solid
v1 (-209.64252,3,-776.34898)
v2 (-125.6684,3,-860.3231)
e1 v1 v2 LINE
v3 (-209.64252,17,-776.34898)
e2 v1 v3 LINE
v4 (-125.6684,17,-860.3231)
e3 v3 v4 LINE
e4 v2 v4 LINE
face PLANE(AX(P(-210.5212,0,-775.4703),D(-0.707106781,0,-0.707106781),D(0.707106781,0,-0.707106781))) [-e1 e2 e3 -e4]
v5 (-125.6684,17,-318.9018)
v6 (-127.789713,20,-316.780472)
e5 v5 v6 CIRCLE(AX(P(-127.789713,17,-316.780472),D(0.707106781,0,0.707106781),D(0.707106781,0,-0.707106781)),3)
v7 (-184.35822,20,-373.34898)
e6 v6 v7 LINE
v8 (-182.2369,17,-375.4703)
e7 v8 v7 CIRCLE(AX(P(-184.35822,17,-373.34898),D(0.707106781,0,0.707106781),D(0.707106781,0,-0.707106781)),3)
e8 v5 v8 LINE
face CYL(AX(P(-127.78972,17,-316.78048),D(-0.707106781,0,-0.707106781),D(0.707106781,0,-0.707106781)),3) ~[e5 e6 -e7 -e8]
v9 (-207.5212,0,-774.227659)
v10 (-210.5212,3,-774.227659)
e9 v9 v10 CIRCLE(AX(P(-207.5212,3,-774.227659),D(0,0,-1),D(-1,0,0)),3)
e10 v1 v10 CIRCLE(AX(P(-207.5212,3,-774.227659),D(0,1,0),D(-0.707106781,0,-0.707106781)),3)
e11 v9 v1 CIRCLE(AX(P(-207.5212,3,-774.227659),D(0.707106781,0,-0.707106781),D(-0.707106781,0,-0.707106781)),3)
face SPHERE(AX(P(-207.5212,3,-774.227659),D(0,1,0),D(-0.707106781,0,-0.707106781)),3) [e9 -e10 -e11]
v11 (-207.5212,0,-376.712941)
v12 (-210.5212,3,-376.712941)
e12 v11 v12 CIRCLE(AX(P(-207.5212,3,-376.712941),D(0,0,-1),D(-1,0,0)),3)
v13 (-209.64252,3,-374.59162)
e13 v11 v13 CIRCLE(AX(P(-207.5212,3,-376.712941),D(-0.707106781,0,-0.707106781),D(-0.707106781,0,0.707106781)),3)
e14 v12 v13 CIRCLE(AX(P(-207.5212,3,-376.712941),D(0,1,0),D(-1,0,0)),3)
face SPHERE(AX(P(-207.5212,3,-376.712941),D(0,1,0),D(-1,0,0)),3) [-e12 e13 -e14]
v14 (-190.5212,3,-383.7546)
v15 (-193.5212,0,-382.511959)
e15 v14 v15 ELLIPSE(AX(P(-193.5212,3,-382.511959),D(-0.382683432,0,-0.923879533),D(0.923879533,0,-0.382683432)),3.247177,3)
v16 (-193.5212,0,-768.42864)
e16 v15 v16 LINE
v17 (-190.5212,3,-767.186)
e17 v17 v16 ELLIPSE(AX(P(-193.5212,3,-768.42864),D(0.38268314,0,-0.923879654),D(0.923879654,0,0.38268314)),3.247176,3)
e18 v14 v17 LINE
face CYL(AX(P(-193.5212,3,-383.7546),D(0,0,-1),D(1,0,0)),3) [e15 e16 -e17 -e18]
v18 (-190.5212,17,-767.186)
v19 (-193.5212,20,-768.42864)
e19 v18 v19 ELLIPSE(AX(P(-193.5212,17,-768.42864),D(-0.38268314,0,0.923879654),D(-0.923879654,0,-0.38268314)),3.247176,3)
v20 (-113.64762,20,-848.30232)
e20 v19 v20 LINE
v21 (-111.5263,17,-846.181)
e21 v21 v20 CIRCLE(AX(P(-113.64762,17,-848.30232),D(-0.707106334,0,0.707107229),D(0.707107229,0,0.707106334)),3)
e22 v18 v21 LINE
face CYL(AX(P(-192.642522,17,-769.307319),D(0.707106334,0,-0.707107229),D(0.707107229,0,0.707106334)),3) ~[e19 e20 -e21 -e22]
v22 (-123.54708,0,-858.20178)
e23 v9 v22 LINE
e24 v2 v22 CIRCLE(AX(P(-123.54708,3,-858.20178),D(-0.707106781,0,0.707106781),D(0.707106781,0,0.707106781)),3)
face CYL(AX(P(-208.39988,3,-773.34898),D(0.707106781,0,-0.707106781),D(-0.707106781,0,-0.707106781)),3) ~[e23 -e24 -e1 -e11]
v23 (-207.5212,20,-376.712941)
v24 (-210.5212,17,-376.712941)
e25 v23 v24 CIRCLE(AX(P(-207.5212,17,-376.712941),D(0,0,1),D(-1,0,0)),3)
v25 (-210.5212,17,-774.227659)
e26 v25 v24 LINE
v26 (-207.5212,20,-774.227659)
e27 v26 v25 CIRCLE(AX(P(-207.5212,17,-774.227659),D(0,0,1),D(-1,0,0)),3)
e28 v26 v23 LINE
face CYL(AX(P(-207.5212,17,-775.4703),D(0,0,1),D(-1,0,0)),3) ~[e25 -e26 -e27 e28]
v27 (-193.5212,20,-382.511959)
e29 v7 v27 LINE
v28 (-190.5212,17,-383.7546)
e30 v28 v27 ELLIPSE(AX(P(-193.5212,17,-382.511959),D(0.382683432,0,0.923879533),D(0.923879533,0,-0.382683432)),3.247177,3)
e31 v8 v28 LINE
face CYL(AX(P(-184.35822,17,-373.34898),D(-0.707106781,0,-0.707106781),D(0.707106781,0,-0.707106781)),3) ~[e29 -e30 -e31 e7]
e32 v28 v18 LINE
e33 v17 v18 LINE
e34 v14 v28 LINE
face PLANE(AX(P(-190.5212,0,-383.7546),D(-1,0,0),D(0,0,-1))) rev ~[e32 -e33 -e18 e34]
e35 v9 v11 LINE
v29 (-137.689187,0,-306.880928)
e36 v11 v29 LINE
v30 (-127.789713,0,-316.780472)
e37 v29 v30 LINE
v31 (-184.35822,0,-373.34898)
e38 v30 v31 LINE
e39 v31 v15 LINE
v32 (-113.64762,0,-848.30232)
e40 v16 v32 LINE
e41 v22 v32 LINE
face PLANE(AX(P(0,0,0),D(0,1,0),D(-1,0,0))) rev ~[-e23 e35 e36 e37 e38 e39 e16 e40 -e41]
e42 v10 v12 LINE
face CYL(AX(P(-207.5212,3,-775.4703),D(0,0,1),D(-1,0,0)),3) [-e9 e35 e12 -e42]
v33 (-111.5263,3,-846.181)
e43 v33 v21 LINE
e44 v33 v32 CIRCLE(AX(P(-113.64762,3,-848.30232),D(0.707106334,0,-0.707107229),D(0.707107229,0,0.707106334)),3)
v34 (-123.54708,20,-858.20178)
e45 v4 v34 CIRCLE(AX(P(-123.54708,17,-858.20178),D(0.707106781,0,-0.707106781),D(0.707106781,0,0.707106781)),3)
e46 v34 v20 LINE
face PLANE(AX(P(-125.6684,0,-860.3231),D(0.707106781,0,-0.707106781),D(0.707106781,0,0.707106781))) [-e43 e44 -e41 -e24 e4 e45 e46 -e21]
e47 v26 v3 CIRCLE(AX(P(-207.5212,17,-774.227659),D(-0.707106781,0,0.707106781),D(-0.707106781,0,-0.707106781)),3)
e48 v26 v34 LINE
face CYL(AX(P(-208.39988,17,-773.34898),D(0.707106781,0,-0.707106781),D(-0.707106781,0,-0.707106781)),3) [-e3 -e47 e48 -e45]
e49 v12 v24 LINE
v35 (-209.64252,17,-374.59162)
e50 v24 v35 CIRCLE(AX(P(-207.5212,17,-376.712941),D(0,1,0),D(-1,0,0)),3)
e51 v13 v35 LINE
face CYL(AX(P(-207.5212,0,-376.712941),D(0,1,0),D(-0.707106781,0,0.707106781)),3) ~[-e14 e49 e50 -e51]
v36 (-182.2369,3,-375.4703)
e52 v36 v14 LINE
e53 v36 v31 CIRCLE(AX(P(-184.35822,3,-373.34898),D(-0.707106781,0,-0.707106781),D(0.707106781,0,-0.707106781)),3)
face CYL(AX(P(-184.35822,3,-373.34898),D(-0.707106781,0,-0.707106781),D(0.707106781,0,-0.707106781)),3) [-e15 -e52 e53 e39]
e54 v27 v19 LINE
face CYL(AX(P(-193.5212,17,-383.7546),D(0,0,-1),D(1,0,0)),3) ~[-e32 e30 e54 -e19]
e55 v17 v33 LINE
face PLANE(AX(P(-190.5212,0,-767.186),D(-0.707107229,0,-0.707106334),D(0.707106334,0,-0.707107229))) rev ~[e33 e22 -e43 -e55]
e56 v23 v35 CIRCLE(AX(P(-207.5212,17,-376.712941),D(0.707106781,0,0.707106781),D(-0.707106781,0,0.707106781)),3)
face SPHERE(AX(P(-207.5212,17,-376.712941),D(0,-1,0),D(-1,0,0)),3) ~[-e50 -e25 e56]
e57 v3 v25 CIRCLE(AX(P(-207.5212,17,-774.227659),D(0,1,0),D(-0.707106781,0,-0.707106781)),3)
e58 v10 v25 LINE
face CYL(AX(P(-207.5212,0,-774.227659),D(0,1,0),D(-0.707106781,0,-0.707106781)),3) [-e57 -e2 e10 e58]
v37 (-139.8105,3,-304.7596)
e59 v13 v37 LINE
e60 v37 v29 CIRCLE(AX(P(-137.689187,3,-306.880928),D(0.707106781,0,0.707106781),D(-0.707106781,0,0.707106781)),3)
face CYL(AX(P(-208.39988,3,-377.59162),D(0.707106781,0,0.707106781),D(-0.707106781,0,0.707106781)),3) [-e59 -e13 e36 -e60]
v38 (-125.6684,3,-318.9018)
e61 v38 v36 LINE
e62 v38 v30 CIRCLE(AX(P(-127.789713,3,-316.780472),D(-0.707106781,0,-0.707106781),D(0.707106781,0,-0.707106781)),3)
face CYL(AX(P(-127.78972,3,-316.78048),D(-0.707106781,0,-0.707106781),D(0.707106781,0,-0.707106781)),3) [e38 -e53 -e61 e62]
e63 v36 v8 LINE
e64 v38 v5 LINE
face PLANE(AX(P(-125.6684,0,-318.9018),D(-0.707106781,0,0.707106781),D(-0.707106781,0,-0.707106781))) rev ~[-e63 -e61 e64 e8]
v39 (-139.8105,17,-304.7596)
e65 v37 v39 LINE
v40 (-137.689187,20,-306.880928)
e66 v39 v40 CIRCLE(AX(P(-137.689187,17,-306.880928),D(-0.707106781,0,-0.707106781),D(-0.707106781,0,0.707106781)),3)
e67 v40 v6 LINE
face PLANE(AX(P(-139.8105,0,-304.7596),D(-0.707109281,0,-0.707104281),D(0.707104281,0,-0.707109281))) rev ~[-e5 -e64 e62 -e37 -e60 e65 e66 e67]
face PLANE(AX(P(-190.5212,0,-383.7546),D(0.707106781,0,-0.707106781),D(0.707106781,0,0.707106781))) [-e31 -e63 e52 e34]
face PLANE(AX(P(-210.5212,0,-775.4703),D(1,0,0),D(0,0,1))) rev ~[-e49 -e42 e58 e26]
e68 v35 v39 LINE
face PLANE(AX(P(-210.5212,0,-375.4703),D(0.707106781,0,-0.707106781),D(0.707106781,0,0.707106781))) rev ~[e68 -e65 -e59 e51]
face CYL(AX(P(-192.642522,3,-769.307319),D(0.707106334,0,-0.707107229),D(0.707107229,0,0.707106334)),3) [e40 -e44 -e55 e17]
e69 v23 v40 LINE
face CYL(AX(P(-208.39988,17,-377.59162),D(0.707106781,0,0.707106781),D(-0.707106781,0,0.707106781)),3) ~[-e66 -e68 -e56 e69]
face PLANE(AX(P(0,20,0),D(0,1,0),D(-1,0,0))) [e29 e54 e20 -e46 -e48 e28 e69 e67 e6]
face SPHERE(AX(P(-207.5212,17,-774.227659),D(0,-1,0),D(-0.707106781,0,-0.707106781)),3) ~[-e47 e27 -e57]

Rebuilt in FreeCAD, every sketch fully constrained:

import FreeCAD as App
import Part
import Sketcher
Q = App.Units.Quantity


def edges_at(feature, points):
    """Names of the edges that pass closest to the given points."""
    edges = feature.Shape.Edges
    near = lambda p: min(range(len(edges)), key=lambda i: edges[i].distToShape(Part.Vertex(*p))[0])
    return sorted({f"Edge{near(p) + 1}" for p in points})

doc = App.newDocument("Part")
body = doc.addObject("PartDesign::Body", "Body")

# Sketch on XZ plane
sketch1 = body.newObject("Sketcher::SketchObject", "Sketch")
sketch1.AttachmentSupport = (doc.getObject("XZ_Plane"), [""])
sketch1.MapMode = "FlatFace"
sketch1.addGeometry([
    Part.LineSegment(App.Vector(-126, -860, 0), App.Vector(-211, -775, 0)),  # 0
    Part.LineSegment(App.Vector(-211, -775, 0), App.Vector(-211, -375, 0)),  # 1
    Part.LineSegment(App.Vector(-211, -375, 0), App.Vector(-140, -305, 0)),  # 2
    Part.LineSegment(App.Vector(-140, -305, 0), App.Vector(-126, -319, 0)),  # 3
    Part.LineSegment(App.Vector(-126, -319, 0), App.Vector(-191, -384, 0)),  # 4
    Part.LineSegment(App.Vector(-191, -384, 0), App.Vector(-191, -767, 0)),  # 5
    Part.LineSegment(App.Vector(-191, -767, 0), App.Vector(-112, -846, 0)),  # 6
    Part.LineSegment(App.Vector(-112, -846, 0), App.Vector(-126, -860, 0)),  # 7
], False)
sketch1.addConstraint([
    Sketcher.Constraint("Coincident", 0, 2, 1, 1),
    Sketcher.Constraint("Coincident", 1, 2, 2, 1),
    Sketcher.Constraint("Coincident", 2, 2, 3, 1),
    Sketcher.Constraint("Coincident", 3, 2, 4, 1),
    Sketcher.Constraint("Coincident", 4, 2, 5, 1),
    Sketcher.Constraint("Coincident", 5, 2, 6, 1),
    Sketcher.Constraint("Coincident", 6, 2, 7, 1),
    Sketcher.Constraint("Coincident", 7, 2, 0, 1),
    Sketcher.Constraint("Vertical", 1),
    Sketcher.Constraint("Vertical", 5),
    Sketcher.Constraint("Perpendicular", 0, 2),
    Sketcher.Constraint("Perpendicular", 2, 3),
    Sketcher.Constraint("Perpendicular", 3, 4),
    Sketcher.Constraint("Perpendicular", 4, 6),
    Sketcher.Constraint("Perpendicular", 6, 7),
    Sketcher.Constraint("Vertical", 3, 2, 7, 2),
    Sketcher.Constraint("Equal", 3, 7),
    Sketcher.Constraint("Angle", 0, Q("135 deg")),
    Sketcher.Constraint("Distance", 2, 100.0),
    Sketcher.Constraint("Distance", 3, 20.0),
    Sketcher.Constraint("DistanceX", 1, 2, 4, 2, 20.0),
    Sketcher.Constraint("DistanceY", 1, 1, 1, 2, 400.0),
    Sketcher.Constraint("DistanceY", 5, 2, -1, 1, 767.186),
    Sketcher.Constraint("DistanceX", 0, 2, -1, 1, 210.5212),
])
pad1 = body.newObject("PartDesign::Pad", "Pad")
pad1.Profile = sketch1
pad1.Length = 20
pad1.Reversed = True
doc.recompute()

fillet = body.newObject("PartDesign::Fillet", "Fillet")
fillet.Base = (pad1, edges_at(pad1, [
    (-175.166, 20, -340.115),
    (-175.166, 0, -340.115),
    (-210.521, 10, -375.47),
    (-210.521, 20, -575.47),
    (-210.521, 0, -575.47),
    (-190.521, 20, -575.47),
    (-153.953, 20, -347.186),
    (-151.024, 20, -806.683),
    (-151.024, 0, -806.683),
    (-210.521, 10, -775.47),
    (-168.095, 0, -817.897),
    (-168.095, 20, -817.897),
    (-190.521, 0, -575.47),
    (-153.953, 0, -347.186),
]))
fillet.Radius = 3

doc.recompute()
